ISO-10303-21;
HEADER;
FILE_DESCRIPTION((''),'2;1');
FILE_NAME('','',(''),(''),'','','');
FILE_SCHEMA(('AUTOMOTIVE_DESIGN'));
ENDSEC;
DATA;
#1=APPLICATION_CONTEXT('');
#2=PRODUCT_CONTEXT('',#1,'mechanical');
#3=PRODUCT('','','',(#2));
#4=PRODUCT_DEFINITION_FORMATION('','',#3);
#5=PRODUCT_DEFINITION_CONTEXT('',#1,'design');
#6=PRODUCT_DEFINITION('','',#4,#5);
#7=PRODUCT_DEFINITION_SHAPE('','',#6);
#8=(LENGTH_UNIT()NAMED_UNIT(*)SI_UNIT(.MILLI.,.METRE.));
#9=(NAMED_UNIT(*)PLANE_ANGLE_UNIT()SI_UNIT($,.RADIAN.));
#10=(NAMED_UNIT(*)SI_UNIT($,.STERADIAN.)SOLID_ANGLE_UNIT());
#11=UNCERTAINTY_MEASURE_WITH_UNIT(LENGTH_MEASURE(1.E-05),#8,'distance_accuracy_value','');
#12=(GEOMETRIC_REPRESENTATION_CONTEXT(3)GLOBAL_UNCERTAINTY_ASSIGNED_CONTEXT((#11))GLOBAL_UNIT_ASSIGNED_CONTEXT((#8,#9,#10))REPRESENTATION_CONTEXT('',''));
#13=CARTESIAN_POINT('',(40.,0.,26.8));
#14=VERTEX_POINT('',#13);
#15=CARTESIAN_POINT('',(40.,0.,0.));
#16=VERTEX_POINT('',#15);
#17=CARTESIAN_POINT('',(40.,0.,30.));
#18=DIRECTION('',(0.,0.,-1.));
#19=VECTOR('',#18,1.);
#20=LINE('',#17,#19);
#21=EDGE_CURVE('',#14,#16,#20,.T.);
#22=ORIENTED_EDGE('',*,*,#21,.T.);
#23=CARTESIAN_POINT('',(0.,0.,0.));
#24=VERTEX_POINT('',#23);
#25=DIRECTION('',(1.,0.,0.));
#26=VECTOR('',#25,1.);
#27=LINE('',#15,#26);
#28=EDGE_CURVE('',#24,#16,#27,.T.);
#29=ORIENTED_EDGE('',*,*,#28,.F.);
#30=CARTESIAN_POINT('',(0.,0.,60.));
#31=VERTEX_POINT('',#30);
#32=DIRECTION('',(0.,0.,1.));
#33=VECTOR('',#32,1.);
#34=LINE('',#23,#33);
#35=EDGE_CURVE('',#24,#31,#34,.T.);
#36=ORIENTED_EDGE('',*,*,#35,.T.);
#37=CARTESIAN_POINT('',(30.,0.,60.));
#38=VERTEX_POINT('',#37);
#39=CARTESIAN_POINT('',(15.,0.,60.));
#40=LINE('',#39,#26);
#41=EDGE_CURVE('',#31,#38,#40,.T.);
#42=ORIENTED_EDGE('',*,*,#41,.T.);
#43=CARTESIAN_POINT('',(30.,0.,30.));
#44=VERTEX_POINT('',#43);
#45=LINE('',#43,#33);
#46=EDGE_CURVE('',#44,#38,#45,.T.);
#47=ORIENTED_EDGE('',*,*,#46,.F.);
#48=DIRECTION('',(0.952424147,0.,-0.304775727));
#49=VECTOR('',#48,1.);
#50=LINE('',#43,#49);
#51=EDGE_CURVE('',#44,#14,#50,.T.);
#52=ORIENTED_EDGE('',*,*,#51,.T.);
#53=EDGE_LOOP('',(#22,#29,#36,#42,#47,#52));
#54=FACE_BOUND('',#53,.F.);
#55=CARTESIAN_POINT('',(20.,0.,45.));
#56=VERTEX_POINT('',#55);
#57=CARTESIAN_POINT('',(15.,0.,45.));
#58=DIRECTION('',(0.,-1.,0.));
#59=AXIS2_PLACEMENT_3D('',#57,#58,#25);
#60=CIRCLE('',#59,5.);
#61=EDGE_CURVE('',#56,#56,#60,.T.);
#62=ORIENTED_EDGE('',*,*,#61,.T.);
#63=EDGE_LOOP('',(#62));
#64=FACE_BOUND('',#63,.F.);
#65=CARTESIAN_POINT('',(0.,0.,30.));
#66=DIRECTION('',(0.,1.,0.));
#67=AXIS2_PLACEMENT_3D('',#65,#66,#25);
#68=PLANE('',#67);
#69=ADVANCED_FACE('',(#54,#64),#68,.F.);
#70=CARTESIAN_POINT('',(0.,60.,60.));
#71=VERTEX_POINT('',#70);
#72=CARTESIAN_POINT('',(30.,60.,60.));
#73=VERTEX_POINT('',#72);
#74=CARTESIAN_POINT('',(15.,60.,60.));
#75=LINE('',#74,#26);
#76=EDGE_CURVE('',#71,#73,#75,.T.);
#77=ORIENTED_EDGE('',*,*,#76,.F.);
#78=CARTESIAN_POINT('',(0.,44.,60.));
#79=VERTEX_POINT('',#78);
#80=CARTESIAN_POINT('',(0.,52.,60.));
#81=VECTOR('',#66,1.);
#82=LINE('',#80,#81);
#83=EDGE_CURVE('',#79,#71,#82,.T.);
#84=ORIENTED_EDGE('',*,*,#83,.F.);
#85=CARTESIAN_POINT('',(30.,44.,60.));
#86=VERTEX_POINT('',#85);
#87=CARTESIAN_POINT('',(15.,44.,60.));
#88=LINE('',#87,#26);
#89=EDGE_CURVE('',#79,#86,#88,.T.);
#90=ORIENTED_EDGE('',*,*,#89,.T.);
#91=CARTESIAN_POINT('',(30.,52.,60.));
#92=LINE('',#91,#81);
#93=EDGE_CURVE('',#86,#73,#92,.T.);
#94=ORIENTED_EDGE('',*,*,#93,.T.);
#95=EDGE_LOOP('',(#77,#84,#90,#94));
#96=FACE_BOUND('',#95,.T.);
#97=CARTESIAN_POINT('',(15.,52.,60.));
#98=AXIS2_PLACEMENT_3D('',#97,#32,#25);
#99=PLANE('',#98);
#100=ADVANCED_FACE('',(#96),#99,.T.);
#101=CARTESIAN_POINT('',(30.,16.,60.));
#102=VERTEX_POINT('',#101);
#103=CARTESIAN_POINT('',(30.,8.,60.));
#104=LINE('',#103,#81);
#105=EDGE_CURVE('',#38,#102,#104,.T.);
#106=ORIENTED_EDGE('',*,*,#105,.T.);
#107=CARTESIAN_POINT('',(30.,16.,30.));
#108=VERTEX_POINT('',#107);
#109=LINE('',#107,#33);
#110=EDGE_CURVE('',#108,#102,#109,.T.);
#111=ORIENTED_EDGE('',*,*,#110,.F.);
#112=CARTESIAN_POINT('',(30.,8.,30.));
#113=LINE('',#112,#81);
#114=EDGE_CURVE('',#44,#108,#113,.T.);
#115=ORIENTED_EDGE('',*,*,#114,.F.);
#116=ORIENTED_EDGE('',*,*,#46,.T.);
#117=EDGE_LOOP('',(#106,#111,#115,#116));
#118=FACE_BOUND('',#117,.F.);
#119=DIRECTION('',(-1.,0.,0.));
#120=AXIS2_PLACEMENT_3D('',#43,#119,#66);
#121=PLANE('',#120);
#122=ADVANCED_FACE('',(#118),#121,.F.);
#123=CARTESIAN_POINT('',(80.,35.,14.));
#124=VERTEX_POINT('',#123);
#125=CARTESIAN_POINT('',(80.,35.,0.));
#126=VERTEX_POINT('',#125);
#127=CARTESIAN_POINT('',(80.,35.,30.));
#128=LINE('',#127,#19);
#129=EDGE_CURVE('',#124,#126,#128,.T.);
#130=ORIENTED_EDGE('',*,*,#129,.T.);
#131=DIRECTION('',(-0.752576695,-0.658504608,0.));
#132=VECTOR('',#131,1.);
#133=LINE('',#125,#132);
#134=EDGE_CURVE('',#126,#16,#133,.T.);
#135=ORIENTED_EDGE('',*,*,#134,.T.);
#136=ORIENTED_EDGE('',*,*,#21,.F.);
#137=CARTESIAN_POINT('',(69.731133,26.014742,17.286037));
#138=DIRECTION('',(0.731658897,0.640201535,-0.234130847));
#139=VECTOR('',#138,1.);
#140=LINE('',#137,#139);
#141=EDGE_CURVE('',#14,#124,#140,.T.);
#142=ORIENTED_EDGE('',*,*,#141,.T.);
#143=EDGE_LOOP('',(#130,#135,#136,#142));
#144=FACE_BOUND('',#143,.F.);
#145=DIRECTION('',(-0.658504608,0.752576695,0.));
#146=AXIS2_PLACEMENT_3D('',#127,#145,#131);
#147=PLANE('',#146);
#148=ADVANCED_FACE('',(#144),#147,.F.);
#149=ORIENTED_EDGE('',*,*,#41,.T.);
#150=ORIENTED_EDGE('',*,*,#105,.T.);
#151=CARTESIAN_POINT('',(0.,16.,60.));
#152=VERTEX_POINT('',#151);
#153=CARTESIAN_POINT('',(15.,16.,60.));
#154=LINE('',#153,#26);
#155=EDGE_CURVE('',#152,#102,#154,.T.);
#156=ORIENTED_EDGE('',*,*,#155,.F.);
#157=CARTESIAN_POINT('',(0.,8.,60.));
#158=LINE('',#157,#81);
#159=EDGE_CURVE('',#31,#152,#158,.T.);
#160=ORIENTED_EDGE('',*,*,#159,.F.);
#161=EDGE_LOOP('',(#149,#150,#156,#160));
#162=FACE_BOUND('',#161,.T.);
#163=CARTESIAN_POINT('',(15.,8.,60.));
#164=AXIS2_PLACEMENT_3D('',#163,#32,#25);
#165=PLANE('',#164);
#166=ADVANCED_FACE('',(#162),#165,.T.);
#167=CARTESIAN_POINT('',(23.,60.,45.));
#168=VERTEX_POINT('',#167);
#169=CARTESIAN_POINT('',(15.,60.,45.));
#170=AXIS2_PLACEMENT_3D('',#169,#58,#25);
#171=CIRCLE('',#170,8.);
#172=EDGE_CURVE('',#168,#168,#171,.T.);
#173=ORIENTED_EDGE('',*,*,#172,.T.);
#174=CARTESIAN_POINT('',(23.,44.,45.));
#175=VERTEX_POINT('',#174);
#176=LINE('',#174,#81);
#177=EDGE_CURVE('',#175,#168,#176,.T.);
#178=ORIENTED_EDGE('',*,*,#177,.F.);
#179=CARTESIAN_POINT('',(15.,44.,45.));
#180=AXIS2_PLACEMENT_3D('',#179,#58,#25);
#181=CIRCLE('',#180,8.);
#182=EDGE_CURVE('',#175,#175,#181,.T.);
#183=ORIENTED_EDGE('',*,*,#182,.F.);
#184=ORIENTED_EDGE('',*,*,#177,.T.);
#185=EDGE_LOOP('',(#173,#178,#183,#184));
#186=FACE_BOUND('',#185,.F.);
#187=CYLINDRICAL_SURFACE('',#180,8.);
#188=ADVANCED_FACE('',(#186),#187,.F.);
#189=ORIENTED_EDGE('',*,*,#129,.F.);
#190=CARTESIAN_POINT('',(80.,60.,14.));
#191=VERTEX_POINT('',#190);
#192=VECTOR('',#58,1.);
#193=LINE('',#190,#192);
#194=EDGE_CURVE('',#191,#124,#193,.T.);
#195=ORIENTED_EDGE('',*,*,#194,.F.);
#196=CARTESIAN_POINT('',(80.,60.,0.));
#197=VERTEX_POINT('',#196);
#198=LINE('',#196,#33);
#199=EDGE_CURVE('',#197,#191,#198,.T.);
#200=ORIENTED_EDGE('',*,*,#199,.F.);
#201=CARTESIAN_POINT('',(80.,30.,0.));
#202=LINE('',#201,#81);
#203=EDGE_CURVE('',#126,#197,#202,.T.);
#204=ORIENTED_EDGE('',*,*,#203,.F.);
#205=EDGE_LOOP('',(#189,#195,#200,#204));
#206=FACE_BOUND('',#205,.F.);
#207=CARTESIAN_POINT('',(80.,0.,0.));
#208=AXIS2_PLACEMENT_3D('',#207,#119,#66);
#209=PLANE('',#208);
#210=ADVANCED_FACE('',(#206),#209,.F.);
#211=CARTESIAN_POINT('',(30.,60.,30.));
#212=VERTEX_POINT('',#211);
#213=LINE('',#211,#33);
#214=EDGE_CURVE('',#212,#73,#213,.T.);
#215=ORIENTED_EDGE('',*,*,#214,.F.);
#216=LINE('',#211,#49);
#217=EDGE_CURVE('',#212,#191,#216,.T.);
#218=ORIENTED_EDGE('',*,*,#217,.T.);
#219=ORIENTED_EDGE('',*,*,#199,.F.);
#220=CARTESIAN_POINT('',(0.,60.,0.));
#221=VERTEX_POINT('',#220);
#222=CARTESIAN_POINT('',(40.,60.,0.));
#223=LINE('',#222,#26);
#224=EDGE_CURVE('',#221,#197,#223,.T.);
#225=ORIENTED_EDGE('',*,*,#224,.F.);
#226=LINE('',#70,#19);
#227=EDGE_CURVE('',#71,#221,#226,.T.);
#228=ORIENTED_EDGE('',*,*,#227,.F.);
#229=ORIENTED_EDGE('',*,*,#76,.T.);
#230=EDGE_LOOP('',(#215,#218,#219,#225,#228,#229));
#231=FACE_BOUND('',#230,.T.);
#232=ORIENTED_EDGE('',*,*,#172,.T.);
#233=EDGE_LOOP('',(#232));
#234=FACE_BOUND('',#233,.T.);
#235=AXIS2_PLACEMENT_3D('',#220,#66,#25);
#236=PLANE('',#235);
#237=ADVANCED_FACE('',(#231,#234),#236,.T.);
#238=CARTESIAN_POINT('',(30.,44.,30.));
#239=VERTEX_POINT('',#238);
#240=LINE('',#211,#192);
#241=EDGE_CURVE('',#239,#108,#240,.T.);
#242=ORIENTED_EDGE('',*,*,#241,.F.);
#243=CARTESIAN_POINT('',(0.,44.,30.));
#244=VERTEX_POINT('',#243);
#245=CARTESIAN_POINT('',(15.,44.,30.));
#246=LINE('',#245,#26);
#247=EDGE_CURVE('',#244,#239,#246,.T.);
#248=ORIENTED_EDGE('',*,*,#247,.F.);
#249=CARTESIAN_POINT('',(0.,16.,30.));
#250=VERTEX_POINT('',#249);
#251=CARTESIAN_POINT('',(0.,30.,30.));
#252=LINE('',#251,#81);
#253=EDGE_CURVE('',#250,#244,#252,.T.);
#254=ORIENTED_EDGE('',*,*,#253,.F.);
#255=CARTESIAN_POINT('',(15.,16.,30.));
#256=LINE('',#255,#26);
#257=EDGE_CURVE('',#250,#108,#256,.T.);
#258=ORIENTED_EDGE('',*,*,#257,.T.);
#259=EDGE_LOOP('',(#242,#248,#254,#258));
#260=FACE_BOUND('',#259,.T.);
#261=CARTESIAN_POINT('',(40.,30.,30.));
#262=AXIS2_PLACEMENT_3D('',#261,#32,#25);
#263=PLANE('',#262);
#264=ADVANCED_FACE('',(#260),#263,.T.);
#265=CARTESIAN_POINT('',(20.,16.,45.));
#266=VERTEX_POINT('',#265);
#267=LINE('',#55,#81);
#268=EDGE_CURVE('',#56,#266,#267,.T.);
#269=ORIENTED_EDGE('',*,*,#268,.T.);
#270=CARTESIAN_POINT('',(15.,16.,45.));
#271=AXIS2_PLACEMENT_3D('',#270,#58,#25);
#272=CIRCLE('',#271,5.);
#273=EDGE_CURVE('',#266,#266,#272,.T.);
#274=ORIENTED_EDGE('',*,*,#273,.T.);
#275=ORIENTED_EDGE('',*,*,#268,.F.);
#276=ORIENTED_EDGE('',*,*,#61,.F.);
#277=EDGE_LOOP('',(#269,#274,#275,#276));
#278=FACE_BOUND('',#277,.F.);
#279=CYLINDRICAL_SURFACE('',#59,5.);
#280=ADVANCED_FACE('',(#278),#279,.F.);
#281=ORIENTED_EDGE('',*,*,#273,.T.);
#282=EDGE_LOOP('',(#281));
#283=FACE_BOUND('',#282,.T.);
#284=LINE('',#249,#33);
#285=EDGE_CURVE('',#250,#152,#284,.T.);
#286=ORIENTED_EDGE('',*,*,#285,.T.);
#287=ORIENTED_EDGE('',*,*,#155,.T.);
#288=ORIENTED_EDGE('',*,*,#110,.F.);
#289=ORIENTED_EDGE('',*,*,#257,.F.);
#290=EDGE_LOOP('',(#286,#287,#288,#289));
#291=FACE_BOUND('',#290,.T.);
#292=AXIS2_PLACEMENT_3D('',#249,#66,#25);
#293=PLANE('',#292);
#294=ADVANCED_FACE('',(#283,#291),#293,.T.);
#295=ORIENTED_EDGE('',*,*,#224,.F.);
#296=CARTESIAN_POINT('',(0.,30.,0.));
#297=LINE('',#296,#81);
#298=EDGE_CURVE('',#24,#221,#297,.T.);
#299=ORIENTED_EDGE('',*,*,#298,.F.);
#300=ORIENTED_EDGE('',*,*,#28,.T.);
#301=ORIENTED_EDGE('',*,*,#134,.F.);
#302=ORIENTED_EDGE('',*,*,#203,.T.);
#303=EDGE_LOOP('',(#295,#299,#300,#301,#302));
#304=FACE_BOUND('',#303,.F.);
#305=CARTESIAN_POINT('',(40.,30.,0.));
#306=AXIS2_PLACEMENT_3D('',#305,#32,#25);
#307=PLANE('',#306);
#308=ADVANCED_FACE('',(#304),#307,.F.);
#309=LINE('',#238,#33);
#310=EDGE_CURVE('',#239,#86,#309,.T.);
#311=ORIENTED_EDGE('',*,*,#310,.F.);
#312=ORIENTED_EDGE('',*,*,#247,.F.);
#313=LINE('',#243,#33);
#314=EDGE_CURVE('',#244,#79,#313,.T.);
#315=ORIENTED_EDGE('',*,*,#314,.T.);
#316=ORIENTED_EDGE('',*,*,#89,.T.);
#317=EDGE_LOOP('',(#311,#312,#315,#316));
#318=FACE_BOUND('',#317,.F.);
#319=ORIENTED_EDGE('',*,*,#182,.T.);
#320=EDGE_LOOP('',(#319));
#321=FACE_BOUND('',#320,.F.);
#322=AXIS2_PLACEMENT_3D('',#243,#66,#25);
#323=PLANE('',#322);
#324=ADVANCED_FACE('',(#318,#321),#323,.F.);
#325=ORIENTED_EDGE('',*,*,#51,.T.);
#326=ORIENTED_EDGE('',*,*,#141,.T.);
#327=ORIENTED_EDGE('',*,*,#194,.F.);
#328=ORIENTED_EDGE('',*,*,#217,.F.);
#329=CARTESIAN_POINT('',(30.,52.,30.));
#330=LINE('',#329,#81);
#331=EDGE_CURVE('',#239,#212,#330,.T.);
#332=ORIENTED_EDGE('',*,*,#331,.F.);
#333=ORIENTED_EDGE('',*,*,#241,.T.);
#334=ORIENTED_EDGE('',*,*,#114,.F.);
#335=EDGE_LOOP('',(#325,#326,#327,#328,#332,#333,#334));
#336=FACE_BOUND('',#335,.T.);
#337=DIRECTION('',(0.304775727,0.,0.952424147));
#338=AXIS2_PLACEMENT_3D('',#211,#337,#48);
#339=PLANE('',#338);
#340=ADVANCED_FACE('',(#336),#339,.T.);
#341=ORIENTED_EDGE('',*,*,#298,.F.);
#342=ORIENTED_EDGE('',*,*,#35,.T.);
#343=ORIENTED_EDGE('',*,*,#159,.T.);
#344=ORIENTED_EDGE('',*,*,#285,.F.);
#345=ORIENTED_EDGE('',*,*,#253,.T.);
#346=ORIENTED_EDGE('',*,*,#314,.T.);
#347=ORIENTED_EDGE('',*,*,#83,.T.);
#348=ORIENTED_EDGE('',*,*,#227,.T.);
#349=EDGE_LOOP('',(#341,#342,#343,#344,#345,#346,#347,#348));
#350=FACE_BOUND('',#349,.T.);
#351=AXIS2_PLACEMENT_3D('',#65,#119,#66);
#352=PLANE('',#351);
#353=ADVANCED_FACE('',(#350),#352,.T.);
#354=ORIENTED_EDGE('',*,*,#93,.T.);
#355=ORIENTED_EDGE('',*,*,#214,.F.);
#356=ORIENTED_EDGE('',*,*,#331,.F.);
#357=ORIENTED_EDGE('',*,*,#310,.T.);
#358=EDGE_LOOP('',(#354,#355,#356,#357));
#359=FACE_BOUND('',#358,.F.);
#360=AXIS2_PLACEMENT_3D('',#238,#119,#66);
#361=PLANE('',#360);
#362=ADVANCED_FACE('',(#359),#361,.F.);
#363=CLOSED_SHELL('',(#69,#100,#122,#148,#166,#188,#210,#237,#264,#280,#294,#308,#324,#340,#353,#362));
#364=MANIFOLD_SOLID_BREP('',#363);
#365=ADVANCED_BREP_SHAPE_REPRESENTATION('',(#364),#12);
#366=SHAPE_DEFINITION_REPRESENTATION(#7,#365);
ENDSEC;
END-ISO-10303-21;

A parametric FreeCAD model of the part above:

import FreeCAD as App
import Part
import Sketcher


def add_polygon(sketch, points):
    """Adds a closed chain of lines whose ends are joined by coincident constraints."""
    first, n = sketch.GeometryCount, len(points)
    for a, b in zip(points, points[1:] + points[:1]):
        sketch.addGeometry(Part.LineSegment(App.Vector(*a, 0), App.Vector(*b, 0)), False)
    for i in range(n):
        sketch.addConstraint(Sketcher.Constraint("Coincident", first + i, 2, first + (i + 1) % n, 1))

doc = App.newDocument("Part")
body = doc.addObject("PartDesign::Body", "Body")

# Sketch on XY plane
sketch1 = doc.addObject("Sketcher::SketchObject", "Sketch")
body.addObject(sketch1)
sketch1.AttachmentSupport = (doc.XY_Plane, [""])
sketch1.MapMode = "FlatFace"
add_polygon(sketch1, [(0, 60), (0, 0), (80, 0), (80, 60)])  # lines 0-3
sketch1.addConstraint(Sketcher.Constraint("Vertical", 0))
sketch1.addConstraint(Sketcher.Constraint("Horizontal", 1))
sketch1.addConstraint(Sketcher.Constraint("Vertical", 2))
sketch1.addConstraint(Sketcher.Constraint("Horizontal", 3))
sketch1.addConstraint(Sketcher.Constraint("Coincident", 0, 2, -1, 1))
sketch1.addConstraint(Sketcher.Constraint("DistanceX", 1, 1, 1, 2, 80.0))
sketch1.addConstraint(Sketcher.Constraint("DistanceY", 0, 2, 0, 1, 60.0))
pad1 = doc.addObject("PartDesign::Pad", "Pad")
body.addObject(pad1)
pad1.Profile = sketch1
pad1.Length = 30

# Sketch on XY plane
sketch2 = doc.addObject("Sketcher::SketchObject", "Sketch001")
body.addObject(sketch2)
sketch2.AttachmentSupport = (doc.XY_Plane, [""])
sketch2.MapMode = "FlatFace"
sketch2.AttachmentOffset = App.Placement(App.Vector(0, 0, 30), App.Rotation())
add_polygon(sketch2, [(80, 0), (80, 35), (40, 0)])  # lines 0-2
sketch2.addConstraint(Sketcher.Constraint("Vertical", 0))
sketch2.addConstraint(Sketcher.Constraint("Horizontal", 2))
sketch2.addConstraint(Sketcher.Constraint("PointOnObject", 1, 2, -1))
sketch2.addConstraint(Sketcher.Constraint("DistanceX", 2, 1, 2, 2, 40.0))
sketch2.addConstraint(Sketcher.Constraint("DistanceY", 0, 1, 0, 2, 35.0))
sketch2.addConstraint(Sketcher.Constraint("DistanceX", -1, 1, 0, 2, 80.0))
pocket1 = doc.addObject("PartDesign::Pocket", "Pocket")
body.addObject(pocket1)
pocket1.Profile = sketch2
pocket1.Length = 30

# Sketch on XY plane
sketch3 = doc.addObject("Sketcher::SketchObject", "Sketch002")
body.addObject(sketch3)
sketch3.AttachmentSupport = (doc.XY_Plane, [""])
sketch3.MapMode = "FlatFace"
sketch3.AttachmentOffset = App.Placement(App.Vector(0, 0, 30), App.Rotation())
add_polygon(sketch3, [(0, 16), (0, 0), (30, 0), (30, 16)])  # lines 0-3
add_polygon(sketch3, [(0, 60), (0, 44), (30, 44), (30, 60)])  # lines 4-7
sketch3.addConstraint(Sketcher.Constraint("Vertical", 0))
sketch3.addConstraint(Sketcher.Constraint("Horizontal", 1))
sketch3.addConstraint(Sketcher.Constraint("Vertical", 2))
sketch3.addConstraint(Sketcher.Constraint("Horizontal", 3))
sketch3.addConstraint(Sketcher.Constraint("Vertical", 4))
sketch3.addConstraint(Sketcher.Constraint("Horizontal", 5))
sketch3.addConstraint(Sketcher.Constraint("Vertical", 6))
sketch3.addConstraint(Sketcher.Constraint("Horizontal", 7))
sketch3.addConstraint(Sketcher.Constraint("Coincident", 0, 2, -1, 1))
sketch3.addConstraint(Sketcher.Constraint("PointOnObject", 4, 2, -2))
sketch3.addConstraint(Sketcher.Constraint("Vertical", 2, 2, 5, 2))
sketch3.addConstraint(Sketcher.Constraint("Equal", 2, 4))
sketch3.addConstraint(Sketcher.Constraint("DistanceX", 1, 1, 1, 2, 30.0))
sketch3.addConstraint(Sketcher.Constraint("DistanceY", 0, 2, 0, 1, 16.0))
sketch3.addConstraint(Sketcher.Constraint("DistanceY", -1, 1, 4, 2, 44.0))
pad2 = doc.addObject("PartDesign::Pad", "Pad001")
body.addObject(pad2)
pad2.Profile = sketch3
pad2.Length = 30

# Sketch on XZ plane
sketch4 = doc.addObject("Sketcher::SketchObject", "Sketch003")
body.addObject(sketch4)
sketch4.AttachmentSupport = (doc.XZ_Plane, [""])
sketch4.MapMode = "FlatFace"
sketch4.AttachmentOffset = App.Placement(App.Vector(0, 0, -60), App.Rotation())
add_polygon(sketch4, [(80, 14), (30, 30), (80, 30)])  # lines 0-2
sketch4.addConstraint(Sketcher.Constraint("Horizontal", 1))
sketch4.addConstraint(Sketcher.Constraint("Vertical", 2))
sketch4.addConstraint(Sketcher.Constraint("DistanceX", 1, 1, 1, 2, 50.0))
sketch4.addConstraint(Sketcher.Constraint("DistanceY", 2, 2, 2, 1, 16.0))
sketch4.addConstraint(Sketcher.Constraint("DistanceX", -1, 1, 0, 2, 30.0))
sketch4.addConstraint(Sketcher.Constraint("DistanceY", -1, 1, 0, 2, 30.0))
pocket2 = doc.addObject("PartDesign::Pocket", "Pocket001")
body.addObject(pocket2)
pocket2.Profile = sketch4
pocket2.Length = 60
pocket2.Reversed = True

# Sketch on XZ plane
sketch5 = doc.addObject("Sketcher::SketchObject", "Sketch004")
body.addObject(sketch5)
sketch5.AttachmentSupport = (doc.XZ_Plane, [""])
sketch5.MapMode = "FlatFace"
sketch5.addGeometry(Part.Circle(App.Vector(15, 45, 0), App.Vector(0, 0, 1), 5), False)
sketch5.addConstraint(Sketcher.Constraint("Diameter", 0, 10.0))
sketch5.addConstraint(Sketcher.Constraint("DistanceX", -1, 1, 0, 3, 15.0))
sketch5.addConstraint(Sketcher.Constraint("DistanceY", -1, 1, 0, 3, 45.0))
pocket3 = doc.addObject("PartDesign::Pocket", "Pocket002")
body.addObject(pocket3)
pocket3.Profile = sketch5
pocket3.Length = 16

# Sketch on XZ plane
sketch6 = doc.addObject("Sketcher::SketchObject", "Sketch005")
body.addObject(sketch6)
sketch6.AttachmentSupport = (doc.XZ_Plane, [""])
sketch6.MapMode = "FlatFace"
sketch6.AttachmentOffset = App.Placement(App.Vector(0, 0, -44), App.Rotation())
sketch6.addGeometry(Part.Circle(App.Vector(15, 45, 0), App.Vector(0, 0, 1), 8), False)
sketch6.addConstraint(Sketcher.Constraint("Diameter", 0, 16.0))
sketch6.addConstraint(Sketcher.Constraint("DistanceX", -1, 1, 0, 3, 15.0))
sketch6.addConstraint(Sketcher.Constraint("DistanceY", -1, 1, 0, 3, 45.0))
pocket4 = doc.addObject("PartDesign::Pocket", "Pocket003")
body.addObject(pocket4)
pocket4.Profile = sketch6
pocket4.Length = 16

doc.recompute()
